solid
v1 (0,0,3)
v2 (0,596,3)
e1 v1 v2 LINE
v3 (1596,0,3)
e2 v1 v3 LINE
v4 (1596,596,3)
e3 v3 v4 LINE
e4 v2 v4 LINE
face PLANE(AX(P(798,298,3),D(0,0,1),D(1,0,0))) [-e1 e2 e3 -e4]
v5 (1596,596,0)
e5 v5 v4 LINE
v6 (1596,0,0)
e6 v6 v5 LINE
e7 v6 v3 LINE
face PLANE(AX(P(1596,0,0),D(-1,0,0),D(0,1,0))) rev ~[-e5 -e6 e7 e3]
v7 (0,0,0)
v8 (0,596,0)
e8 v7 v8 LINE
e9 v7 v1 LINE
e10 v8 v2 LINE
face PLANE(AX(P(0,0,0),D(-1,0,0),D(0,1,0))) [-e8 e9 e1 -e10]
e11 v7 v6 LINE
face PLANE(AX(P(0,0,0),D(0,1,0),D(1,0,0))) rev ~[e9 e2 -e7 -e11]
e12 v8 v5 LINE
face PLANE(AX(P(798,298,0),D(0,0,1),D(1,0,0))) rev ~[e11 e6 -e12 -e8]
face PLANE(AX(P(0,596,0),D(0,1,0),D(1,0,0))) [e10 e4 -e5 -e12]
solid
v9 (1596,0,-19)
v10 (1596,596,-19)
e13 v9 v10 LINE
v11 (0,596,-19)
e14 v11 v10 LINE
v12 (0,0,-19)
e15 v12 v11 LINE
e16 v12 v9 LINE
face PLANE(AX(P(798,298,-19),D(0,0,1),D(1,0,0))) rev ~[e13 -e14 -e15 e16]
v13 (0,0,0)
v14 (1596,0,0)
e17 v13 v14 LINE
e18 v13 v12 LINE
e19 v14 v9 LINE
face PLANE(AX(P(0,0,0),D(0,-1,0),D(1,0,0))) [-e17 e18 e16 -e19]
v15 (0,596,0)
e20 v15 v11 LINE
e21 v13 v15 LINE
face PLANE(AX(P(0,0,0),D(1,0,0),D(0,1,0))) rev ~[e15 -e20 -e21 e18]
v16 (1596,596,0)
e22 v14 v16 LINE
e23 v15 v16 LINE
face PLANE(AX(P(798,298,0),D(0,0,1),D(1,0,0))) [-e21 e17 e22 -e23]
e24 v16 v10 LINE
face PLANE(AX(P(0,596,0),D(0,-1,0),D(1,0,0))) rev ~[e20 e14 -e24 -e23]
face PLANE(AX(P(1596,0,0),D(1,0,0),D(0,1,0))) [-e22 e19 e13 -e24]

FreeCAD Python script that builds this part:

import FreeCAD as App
import Part
import Sketcher
from FreeCAD import Vector
Q = App.Units.Quantity

doc = App.newDocument("Part")
body = doc.addObject("PartDesign::Body", "Body")

sketch1 = body.newObject("Sketcher::SketchObject", "Sketch")
sketch1.AttachmentSupport = (doc.getObject("XY_Plane"), [""])
sketch1.MapMode = "FlatFace"
sketch1.addGeometry([
    Part.LineSegment(Vector(0, 596, 0), Vector(0, 0, 0)),
    Part.LineSegment(Vector(0, 0, 0), Vector(1596, 0, 0)),
    Part.LineSegment(Vector(1596, 0, 0), Vector(1596, 596, 0)),
    Part.LineSegment(Vector(1596, 596, 0), Vector(0, 596, 0)),
], False)
sketch1.addConstraint([
    Sketcher.Constraint("Coincident", 0, 2, 1, 1),
    Sketcher.Constraint("Coincident", 1, 2, 2, 1),
    Sketcher.Constraint("Coincident", 2, 2, 3, 1),
    Sketcher.Constraint("Coincident", 3, 2, 0, 1),
    Sketcher.Constraint("Vertical", 0),
    Sketcher.Constraint("Horizontal", 1),
    Sketcher.Constraint("Vertical", 2),
    Sketcher.Constraint("Horizontal", 3),
    Sketcher.Constraint("Coincident", 0, 2, -1, 1),
    Sketcher.Constraint("DistanceX", 1, 1, 1, 2, Q("1596 mm")),
    Sketcher.Constraint("DistanceY", 0, 2, 0, 1, Q("596 mm")),
])
pad1 = body.newObject("PartDesign::Pad", "Pad")
pad1.Profile = sketch1
pad1.Length = 19
pad1.Reversed = True
body2 = doc.addObject("PartDesign::Body", "Body001")

sketch2 = body2.newObject("Sketcher::SketchObject", "Sketch001")
sketch2.AttachmentSupport = (doc.getObject("XY_Plane001"), [""])
sketch2.MapMode = "FlatFace"
sketch2.addGeometry([
    Part.LineSegment(Vector(0, 596, 0), Vector(0, 0, 0)),
    Part.LineSegment(Vector(0, 0, 0), Vector(1596, 0, 0)),
    Part.LineSegment(Vector(1596, 0, 0), Vector(1596, 596, 0)),
    Part.LineSegment(Vector(1596, 596, 0), Vector(0, 596, 0)),
], False)
sketch2.addConstraint([
    Sketcher.Constraint("Coincident", 0, 2, 1, 1),
    Sketcher.Constraint("Coincident", 1, 2, 2, 1),
    Sketcher.Constraint("Coincident", 2, 2, 3, 1),
    Sketcher.Constraint("Coincident", 3, 2, 0, 1),
    Sketcher.Constraint("Vertical", 0),
    Sketcher.Constraint("Horizontal", 1),
    Sketcher.Constraint("Vertical", 2),
    Sketcher.Constraint("Horizontal", 3),
    Sketcher.Constraint("Coincident", 0, 2, -1, 1),
    Sketcher.Constraint("DistanceX", 1, 1, 1, 2, Q("1596 mm")),
    Sketcher.Constraint("DistanceY", 0, 2, 0, 1, Q("596 mm")),
])
pad2 = body2.newObject("PartDesign::Pad", "Pad001")
pad2.Profile = sketch2
pad2.Length = 3

doc.recompute()
